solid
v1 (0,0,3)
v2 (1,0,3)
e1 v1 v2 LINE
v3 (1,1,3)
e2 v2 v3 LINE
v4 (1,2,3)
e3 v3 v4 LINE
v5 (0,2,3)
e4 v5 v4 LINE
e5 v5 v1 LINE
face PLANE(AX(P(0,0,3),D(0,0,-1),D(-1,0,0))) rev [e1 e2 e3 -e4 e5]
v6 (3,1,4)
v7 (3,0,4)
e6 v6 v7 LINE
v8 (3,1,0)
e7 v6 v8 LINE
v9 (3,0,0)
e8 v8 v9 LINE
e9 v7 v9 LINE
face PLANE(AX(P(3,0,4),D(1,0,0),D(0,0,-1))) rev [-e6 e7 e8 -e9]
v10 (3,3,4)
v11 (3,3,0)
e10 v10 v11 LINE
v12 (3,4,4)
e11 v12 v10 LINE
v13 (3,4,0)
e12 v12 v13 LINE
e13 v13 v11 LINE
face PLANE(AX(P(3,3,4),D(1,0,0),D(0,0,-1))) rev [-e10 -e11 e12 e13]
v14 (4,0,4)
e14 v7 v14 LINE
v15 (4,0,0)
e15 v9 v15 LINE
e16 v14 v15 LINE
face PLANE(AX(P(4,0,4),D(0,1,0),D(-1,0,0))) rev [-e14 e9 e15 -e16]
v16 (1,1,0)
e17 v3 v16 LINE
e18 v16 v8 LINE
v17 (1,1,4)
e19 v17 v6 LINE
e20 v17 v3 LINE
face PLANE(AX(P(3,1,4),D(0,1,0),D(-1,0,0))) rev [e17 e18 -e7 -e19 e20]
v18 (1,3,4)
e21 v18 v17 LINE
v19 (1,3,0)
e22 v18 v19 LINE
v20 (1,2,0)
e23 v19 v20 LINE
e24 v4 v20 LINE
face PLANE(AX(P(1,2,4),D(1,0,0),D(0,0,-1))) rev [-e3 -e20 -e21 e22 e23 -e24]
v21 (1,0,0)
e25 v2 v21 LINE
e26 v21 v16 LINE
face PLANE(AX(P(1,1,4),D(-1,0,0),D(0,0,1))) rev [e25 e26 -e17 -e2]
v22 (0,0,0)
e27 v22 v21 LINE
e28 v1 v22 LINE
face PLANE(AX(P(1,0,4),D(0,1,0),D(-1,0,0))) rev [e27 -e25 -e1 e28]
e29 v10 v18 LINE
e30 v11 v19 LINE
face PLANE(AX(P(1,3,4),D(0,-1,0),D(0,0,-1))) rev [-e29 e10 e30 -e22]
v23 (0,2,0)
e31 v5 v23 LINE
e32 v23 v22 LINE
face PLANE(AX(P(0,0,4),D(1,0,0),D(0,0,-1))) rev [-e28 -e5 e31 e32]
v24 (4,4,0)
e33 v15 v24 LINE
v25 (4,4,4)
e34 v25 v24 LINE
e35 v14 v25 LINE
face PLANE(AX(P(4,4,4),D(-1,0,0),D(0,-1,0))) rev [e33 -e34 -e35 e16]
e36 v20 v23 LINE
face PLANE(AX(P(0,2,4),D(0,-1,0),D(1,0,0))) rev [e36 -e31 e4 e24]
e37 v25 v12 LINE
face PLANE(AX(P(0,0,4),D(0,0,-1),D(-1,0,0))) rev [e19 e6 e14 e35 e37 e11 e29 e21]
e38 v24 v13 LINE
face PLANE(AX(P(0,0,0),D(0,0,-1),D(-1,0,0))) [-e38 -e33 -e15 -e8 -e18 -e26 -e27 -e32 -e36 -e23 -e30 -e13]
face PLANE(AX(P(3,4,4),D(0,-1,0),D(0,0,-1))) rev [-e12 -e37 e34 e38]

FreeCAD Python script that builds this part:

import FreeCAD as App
import Part
import Sketcher
from FreeCAD import Vector


def add_polygon(sketch, points):
    """Adds a closed chain of lines whose ends are joined by coincident constraints."""
    first, n = sketch.GeometryCount, len(points)
    for a, b in zip(points, points[1:] + points[:1]):
        sketch.addGeometry(Part.LineSegment(App.Vector(*a, 0), App.Vector(*b, 0)), False)
    for i in range(n):
        sketch.addConstraint(Sketcher.Constraint("Coincident", first + i, 2, first + (i + 1) % n, 1))

doc = App.newDocument("Part")
body = doc.addObject("PartDesign::Body", "Body")

# Sketch on XY plane
sketch1 = body.newObject("Sketcher::SketchObject", "Sketch")
sketch1.AttachmentSupport = (doc.getObject("XY_Plane"), [""])
sketch1.MapMode = "FlatFace"
add_polygon(sketch1, [(0, 2), (0, 0), (1, 0), (1, 1), (3, 1), (3, 0), (4, 0), (4, 4), (3, 4), (3, 3), (1, 3), (1, 2)])  # lines 0-11
sketch1.addConstraint([
    Sketcher.Constraint("Vertical", 0),
    Sketcher.Constraint("Horizontal", 1),
    Sketcher.Constraint("Vertical", 2),
    Sketcher.Constraint("Horizontal", 3),
    Sketcher.Constraint("Vertical", 4),
    Sketcher.Constraint("Horizontal", 5),
    Sketcher.Constraint("Vertical", 6),
    Sketcher.Constraint("Horizontal", 7),
    Sketcher.Constraint("Vertical", 8),
    Sketcher.Constraint("Horizontal", 9),
    Sketcher.Constraint("Vertical", 10),
    Sketcher.Constraint("Horizontal", 11),
    Sketcher.Constraint("Coincident", 0, 2, -1, 1),
    Sketcher.Constraint("PointOnObject", 4, 2, -1),
    Sketcher.Constraint("Vertical", 4, 2, 7, 2),
    Sketcher.Constraint("Vertical", 2, 2, 9, 2),
    Sketcher.Constraint("Equal", 1, 5),
    Sketcher.Constraint("Equal", 9, 0),
    Sketcher.Constraint("Equal", 11, 2),
    Sketcher.Constraint("Equal", 4, 8),
    Sketcher.Constraint("Equal", 8, 10),
    Sketcher.Constraint("DistanceX", 1, 1, 1, 2, 1.0),
    Sketcher.Constraint("DistanceX", 3, 1, 3, 2, 2.0),
])
pad1 = body.newObject("PartDesign::Pad", "Pad")
pad1.Profile = sketch1
pad1.Length = 4

# Sketch on XY plane
sketch2 = body.newObject("Sketcher::SketchObject", "Sketch001")
sketch2.AttachmentSupport = (doc.getObject("XY_Plane"), [""])
sketch2.MapMode = "FlatFace"
sketch2.AttachmentOffset = App.Placement(Vector(0, 0, 4), App.Rotation())
add_polygon(sketch2, [(0, 3), (0, 0), (1, 0), (1, 3)])  # lines 0-3
sketch2.addConstraint([
    Sketcher.Constraint("Vertical", 0),
    Sketcher.Constraint("Horizontal", 1),
    Sketcher.Constraint("Vertical", 2),
    Sketcher.Constraint("Horizontal", 3),
    Sketcher.Constraint("Coincident", 0, 2, -1, 1),
    Sketcher.Constraint("DistanceX", 1, 1, 1, 2, 1.0),
    Sketcher.Constraint("DistanceY", 0, 2, 0, 1, 3.0),
])
pocket1 = body.newObject("PartDesign::Pocket", "Pocket")
pocket1.Profile = sketch2
pocket1.Length = 1

doc.recompute()
